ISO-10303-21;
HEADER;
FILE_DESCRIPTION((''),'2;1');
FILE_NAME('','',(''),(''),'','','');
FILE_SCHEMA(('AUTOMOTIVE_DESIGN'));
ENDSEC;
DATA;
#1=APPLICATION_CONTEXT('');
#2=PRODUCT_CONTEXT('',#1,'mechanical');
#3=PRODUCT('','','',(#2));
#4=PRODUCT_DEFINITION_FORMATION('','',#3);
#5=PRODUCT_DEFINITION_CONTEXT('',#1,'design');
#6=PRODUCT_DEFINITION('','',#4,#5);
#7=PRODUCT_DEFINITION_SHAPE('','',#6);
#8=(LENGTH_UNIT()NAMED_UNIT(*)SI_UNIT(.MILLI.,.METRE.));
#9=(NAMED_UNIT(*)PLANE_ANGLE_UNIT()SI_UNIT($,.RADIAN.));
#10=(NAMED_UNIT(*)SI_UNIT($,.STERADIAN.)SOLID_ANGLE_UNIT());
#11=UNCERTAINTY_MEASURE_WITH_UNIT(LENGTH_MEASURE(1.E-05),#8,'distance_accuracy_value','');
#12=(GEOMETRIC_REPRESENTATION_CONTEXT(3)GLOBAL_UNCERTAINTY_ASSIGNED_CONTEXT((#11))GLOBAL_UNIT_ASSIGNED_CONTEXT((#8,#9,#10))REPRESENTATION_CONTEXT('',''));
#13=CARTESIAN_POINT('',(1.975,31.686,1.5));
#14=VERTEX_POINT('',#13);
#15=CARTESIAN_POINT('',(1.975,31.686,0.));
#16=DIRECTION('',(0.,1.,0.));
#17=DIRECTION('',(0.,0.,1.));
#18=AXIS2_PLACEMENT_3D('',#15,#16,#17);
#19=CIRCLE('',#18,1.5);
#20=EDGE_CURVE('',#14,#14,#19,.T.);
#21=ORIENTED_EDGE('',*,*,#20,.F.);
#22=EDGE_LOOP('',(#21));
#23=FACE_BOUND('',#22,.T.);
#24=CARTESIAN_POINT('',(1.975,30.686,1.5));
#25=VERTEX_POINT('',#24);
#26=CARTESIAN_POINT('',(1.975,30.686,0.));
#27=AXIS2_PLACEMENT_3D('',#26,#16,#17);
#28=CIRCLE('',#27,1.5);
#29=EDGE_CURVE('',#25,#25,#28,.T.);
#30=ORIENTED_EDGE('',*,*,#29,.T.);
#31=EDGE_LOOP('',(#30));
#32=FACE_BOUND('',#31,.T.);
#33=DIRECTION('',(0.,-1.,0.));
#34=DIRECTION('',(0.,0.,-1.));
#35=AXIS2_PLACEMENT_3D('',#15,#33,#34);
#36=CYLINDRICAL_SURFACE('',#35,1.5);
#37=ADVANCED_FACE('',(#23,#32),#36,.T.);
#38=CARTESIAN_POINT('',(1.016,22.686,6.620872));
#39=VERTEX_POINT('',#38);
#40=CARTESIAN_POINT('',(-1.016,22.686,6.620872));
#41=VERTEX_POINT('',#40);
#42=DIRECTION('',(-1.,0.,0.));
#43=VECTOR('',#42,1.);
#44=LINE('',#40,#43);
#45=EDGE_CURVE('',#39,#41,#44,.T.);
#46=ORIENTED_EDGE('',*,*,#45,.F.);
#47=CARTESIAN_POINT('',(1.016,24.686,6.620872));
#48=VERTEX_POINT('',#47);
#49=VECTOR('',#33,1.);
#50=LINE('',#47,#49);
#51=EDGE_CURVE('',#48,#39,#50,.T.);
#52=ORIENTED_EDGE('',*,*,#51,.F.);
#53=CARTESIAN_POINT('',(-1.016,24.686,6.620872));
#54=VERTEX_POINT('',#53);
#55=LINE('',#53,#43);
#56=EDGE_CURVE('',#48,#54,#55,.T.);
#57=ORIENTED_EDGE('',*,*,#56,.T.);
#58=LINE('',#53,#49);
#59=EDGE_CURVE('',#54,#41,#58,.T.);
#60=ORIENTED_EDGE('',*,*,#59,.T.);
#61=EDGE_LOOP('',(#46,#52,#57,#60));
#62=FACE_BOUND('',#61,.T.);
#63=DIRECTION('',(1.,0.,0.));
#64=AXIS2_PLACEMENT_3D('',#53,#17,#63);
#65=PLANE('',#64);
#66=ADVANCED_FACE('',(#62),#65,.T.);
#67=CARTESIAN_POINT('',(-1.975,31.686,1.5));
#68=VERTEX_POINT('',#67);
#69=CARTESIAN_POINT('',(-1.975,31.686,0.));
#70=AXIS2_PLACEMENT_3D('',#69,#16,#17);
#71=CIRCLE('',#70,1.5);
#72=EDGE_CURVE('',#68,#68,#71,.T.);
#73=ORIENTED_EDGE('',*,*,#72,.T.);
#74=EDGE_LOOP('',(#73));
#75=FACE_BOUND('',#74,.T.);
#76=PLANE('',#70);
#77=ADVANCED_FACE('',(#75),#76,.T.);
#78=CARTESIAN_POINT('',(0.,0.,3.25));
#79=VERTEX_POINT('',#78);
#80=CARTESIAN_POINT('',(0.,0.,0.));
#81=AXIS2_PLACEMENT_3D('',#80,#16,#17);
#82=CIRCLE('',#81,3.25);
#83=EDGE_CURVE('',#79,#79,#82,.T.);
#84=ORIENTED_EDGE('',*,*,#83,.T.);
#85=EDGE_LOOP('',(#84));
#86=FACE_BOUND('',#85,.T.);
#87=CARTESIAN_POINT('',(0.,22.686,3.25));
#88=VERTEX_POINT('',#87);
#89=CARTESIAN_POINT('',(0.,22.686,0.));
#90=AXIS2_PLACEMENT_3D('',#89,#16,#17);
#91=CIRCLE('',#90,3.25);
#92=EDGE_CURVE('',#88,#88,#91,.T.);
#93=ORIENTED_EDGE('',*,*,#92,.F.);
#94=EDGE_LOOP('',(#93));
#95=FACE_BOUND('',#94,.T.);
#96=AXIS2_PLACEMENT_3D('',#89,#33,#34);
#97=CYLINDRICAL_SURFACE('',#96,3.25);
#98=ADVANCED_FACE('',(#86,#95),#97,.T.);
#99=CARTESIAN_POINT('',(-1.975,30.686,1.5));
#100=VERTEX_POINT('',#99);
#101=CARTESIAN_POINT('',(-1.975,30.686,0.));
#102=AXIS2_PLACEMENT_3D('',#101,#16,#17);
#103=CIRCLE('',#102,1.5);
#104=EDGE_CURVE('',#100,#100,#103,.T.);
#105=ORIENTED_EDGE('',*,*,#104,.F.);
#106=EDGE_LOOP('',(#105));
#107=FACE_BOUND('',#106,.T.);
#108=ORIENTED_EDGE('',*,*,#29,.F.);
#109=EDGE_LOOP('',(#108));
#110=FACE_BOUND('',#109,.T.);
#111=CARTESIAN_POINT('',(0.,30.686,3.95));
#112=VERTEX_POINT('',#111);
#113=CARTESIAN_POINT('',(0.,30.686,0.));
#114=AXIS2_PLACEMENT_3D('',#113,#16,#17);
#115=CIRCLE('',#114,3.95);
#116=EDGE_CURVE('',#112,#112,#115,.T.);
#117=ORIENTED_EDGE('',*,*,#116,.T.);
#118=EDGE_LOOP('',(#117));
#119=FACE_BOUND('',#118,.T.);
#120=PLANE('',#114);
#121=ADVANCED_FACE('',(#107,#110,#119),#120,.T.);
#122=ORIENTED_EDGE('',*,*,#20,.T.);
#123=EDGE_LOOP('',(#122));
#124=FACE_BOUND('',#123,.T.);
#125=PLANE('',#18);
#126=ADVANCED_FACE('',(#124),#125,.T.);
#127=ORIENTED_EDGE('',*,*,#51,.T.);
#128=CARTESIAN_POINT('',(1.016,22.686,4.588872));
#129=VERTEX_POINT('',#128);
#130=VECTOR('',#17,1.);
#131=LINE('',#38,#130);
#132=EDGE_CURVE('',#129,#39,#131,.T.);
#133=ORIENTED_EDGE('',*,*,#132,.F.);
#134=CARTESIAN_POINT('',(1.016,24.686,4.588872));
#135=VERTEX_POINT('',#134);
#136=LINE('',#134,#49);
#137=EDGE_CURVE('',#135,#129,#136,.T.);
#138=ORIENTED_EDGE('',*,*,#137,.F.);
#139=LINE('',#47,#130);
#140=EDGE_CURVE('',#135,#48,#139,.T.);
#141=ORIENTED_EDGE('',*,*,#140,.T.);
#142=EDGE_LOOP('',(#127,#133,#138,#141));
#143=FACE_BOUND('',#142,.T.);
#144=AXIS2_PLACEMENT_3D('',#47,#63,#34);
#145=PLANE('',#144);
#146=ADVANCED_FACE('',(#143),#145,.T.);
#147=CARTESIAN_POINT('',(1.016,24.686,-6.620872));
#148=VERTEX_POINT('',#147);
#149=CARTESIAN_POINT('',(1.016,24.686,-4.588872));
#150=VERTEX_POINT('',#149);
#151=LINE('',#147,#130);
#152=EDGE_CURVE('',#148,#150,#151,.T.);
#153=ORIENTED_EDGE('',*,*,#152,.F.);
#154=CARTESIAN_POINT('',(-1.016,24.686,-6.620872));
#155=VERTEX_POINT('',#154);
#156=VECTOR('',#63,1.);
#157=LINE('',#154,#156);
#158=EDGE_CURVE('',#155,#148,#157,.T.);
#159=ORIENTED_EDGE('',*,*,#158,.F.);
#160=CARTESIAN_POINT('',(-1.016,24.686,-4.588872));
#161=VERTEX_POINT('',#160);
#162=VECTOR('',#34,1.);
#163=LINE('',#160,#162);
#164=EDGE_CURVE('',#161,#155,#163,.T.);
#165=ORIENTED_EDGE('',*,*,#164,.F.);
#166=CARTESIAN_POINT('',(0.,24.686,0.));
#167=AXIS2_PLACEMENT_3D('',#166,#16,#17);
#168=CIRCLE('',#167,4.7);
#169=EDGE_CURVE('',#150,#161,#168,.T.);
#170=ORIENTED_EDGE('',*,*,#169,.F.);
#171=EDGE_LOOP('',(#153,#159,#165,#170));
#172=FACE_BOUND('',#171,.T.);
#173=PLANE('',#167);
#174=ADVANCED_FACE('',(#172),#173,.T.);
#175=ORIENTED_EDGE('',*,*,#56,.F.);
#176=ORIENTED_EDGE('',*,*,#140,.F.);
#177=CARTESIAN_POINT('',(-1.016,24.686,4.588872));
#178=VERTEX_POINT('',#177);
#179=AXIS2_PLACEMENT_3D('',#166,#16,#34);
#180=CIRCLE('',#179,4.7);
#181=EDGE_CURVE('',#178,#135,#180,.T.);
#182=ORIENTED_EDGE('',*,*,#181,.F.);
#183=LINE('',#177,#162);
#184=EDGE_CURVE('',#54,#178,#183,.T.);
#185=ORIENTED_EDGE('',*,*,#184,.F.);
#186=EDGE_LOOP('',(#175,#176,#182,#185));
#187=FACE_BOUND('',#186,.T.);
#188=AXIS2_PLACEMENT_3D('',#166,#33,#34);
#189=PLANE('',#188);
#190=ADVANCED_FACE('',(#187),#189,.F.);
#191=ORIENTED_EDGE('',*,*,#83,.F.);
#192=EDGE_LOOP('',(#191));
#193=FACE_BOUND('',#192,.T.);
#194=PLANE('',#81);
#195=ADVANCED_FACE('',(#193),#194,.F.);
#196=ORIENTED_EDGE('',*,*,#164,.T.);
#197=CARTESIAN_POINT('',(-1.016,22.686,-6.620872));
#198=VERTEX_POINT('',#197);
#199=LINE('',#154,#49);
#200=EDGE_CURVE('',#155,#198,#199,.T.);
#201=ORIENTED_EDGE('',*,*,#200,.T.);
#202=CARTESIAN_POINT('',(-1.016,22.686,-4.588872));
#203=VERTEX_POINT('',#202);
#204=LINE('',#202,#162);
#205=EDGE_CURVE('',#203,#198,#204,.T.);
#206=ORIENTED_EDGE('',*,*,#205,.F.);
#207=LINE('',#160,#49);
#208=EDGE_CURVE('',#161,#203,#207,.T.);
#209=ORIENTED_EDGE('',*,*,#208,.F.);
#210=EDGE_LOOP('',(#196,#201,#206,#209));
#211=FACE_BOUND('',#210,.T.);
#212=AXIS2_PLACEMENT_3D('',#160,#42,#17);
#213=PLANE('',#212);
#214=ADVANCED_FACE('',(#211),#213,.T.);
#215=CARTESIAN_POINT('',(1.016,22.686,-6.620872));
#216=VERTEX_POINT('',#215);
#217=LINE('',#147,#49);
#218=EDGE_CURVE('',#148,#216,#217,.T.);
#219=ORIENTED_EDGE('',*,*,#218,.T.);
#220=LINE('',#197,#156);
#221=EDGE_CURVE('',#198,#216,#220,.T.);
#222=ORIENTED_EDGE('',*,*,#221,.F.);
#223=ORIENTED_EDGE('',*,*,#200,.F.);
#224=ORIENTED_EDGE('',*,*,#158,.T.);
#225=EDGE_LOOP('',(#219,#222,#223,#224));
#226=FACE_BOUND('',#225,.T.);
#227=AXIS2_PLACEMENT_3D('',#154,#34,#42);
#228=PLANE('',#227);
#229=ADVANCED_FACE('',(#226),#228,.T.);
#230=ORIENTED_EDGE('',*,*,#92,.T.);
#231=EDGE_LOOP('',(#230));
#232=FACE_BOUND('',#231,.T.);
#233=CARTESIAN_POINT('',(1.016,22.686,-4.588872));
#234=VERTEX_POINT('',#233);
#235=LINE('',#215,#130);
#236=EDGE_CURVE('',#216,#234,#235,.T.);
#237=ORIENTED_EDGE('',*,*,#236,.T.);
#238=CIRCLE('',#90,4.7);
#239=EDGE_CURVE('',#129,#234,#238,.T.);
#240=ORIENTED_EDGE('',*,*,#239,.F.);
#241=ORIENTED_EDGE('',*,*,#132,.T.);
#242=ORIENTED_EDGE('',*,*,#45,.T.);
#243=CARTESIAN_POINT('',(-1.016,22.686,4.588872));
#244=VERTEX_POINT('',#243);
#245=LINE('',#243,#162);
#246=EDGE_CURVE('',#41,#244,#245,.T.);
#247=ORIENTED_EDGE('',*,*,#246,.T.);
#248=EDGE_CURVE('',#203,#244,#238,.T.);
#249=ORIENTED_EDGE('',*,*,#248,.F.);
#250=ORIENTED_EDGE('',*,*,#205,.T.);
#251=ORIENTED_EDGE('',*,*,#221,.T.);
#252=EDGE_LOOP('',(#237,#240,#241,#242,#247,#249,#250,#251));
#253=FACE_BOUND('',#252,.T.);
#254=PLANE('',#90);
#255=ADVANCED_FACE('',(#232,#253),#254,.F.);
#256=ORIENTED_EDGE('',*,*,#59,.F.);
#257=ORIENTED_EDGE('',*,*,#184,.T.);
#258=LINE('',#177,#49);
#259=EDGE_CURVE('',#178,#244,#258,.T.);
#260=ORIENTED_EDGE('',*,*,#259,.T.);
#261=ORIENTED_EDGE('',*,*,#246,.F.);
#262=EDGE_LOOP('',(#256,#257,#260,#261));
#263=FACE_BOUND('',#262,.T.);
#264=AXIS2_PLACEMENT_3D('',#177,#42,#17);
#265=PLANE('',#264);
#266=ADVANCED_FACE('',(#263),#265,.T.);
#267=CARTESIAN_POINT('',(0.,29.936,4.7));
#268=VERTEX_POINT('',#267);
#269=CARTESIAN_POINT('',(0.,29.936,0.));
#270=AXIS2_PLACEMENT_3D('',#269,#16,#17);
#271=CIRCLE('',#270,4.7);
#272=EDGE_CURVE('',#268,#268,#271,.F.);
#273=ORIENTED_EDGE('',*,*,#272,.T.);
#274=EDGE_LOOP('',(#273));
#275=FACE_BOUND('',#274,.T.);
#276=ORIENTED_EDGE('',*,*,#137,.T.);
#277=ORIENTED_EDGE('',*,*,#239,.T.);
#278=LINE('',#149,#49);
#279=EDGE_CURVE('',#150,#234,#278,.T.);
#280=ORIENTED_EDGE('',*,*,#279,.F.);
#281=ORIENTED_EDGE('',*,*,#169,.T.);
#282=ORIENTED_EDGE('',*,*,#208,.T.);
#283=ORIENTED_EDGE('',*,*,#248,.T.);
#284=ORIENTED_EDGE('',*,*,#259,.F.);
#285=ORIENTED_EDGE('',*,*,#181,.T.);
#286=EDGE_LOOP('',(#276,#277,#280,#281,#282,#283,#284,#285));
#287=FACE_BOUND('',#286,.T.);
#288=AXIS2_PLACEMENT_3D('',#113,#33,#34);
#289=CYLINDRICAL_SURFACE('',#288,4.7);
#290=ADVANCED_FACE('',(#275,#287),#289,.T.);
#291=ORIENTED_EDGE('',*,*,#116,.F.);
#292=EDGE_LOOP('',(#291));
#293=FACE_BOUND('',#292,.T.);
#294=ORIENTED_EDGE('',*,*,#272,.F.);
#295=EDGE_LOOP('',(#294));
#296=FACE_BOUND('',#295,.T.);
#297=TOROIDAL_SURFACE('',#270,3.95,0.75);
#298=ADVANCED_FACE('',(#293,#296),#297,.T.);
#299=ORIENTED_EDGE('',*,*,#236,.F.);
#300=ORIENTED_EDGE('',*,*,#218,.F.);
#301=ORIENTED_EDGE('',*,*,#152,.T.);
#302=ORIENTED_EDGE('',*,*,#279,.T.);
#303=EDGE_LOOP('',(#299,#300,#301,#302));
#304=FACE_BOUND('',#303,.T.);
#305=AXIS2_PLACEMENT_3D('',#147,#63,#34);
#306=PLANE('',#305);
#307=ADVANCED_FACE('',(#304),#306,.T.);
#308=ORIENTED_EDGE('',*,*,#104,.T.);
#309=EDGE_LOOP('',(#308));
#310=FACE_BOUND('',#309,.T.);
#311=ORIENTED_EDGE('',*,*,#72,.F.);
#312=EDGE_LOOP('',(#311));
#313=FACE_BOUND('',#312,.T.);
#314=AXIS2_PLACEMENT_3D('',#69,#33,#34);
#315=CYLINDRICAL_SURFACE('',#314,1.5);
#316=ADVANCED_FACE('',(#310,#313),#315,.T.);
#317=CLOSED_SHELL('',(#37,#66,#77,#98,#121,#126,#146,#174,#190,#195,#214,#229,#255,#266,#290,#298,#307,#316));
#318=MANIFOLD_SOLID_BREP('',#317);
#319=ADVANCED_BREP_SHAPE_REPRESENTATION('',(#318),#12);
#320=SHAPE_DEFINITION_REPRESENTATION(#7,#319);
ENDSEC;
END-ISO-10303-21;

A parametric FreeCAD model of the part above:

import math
import FreeCAD as App
import Part
import Sketcher


def edges_at(feature, points):
    """Names of the edges that pass closest to the given points."""
    edges = feature.Shape.Edges
    near = lambda p: min(range(len(edges)), key=lambda i: edges[i].distToShape(Part.Vertex(*p))[0])
    return sorted({f"Edge{near(p) + 1}" for p in points})

doc = App.newDocument("Part")
params = doc.addObject("Spreadsheet::Sheet", "Params")
for row, (alias, value) in enumerate([
    ("sketch1_diameter", "6.5 mm"),
    ("pad1_length", "22.686 mm"),
    ("sketch2_diameter", "9.4 mm"),
    ("pad2_length", "8 mm"),
    ("fillet_radius", "0.75 mm"),
    ("sketch3_diameter", "3 mm"),
    ("pad3_length", "1 mm"),
    ("sketch4_radius", "4.7 mm"),
    ("pad4_length", "2 mm"),
], start=1):
    params.set(f"A{row}", alias)
    params.set(f"B{row}", "=" + value)
    params.setAlias(f"B{row}", alias)

body = doc.addObject("PartDesign::Body", "Body")

# Sketch on XZ plane
sketch1 = body.newObject("Sketcher::SketchObject", "Sketch")
sketch1.AttachmentSupport = (doc.getObject("XZ_Plane"), [""])
sketch1.MapMode = "FlatFace"
sketch1.addGeometry(Part.Circle(App.Vector(0, 0, 0), App.Vector(0, 0, 1), 3.2), False)
sketch1.addConstraint([
    Sketcher.Constraint("Coincident", 0, 3, -1, 1),
    Sketcher.Constraint("Diameter", 0, 6.5),
])
sketch1.setExpression("Constraints[1]", "Params.sketch1_diameter")
pad1 = body.newObject("PartDesign::Pad", "Pad")
pad1.Profile = sketch1
pad1.setExpression("Length", "Params.pad1_length")
pad1.Reversed = True

# Sketch on XZ plane
sketch2 = body.newObject("Sketcher::SketchObject", "Sketch001")
sketch2.AttachmentSupport = (doc.getObject("XZ_Plane"), [""])
sketch2.MapMode = "FlatFace"
sketch2.AttachmentOffset = App.Placement(App.Vector(0, 0, -22.686), App.Rotation())
sketch2.addGeometry(Part.Circle(App.Vector(0, 0, 0), App.Vector(0, 0, 1), 4.7), False)
sketch2.addConstraint([
    Sketcher.Constraint("Coincident", 0, 3, -1, 1),
    Sketcher.Constraint("Diameter", 0, 9.4),
])
sketch2.setExpression("Constraints[1]", "Params.sketch2_diameter")
pad2 = body.newObject("PartDesign::Pad", "Pad001")
pad2.Profile = sketch2
pad2.setExpression("Length", "Params.pad2_length")
pad2.Reversed = True
doc.recompute()

fillet = body.newObject("PartDesign::Fillet", "Fillet")
fillet.Base = (pad2, edges_at(pad2, [(-4.7, 30.686, 0)]))
fillet.setExpression("Radius", "Params.fillet_radius")

# Sketch on XZ plane
sketch3 = body.newObject("Sketcher::SketchObject", "Sketch002")
sketch3.AttachmentSupport = (doc.getObject("XZ_Plane"), [""])
sketch3.MapMode = "FlatFace"
sketch3.AttachmentOffset = App.Placement(App.Vector(0, 0, -30.686), App.Rotation())
sketch3.addGeometry([
    Part.Circle(App.Vector(-2, 0, 0), App.Vector(0, 0, 1), 1.5),
    Part.Circle(App.Vector(2, 0, 0), App.Vector(0, 0, 1), 1.5),
], False)
sketch3.addConstraint([
    Sketcher.Constraint("Equal", 0, 1),
    Sketcher.Constraint("Symmetric", 0, 3, 1, 3, -1, 1),
    Sketcher.Constraint("PointOnObject", 0, 3, -1),
    Sketcher.Constraint("Diameter", 0, 3.0),
    Sketcher.Constraint("DistanceX", 0, 3, 1, 3, 3.95),
])
sketch3.setExpression("Constraints[3]", "Params.sketch3_diameter")
pad3 = body.newObject("PartDesign::Pad", "Pad002")
pad3.Profile = sketch3
pad3.setExpression("Length", "Params.pad3_length")
pad3.Reversed = True

# Sketch on XZ plane
sketch4 = body.newObject("Sketcher::SketchObject", "Sketch003")
sketch4.AttachmentSupport = (doc.getObject("XZ_Plane"), [""])
sketch4.MapMode = "FlatFace"
sketch4.AttachmentOffset = App.Placement(App.Vector(0, 0, -22.686), App.Rotation())
sketch4.addGeometry([
    Part.LineSegment(App.Vector(-1, 6.6, 0), App.Vector(-1, 4.6, 0)),  # 0
    Part.ArcOfCircle(Part.Circle(App.Vector(0, 0, 0), App.Vector(0, 0, 1), 4.7), math.radians(78), math.radians(102)),  # 1
    Part.LineSegment(App.Vector(1, 4.6, 0), App.Vector(1, 6.6, 0)),  # 2
    Part.LineSegment(App.Vector(1, 6.6, 0), App.Vector(-1, 6.6, 0)),  # 3
    Part.LineSegment(App.Vector(1, -6.6, 0), App.Vector(1, -4.6, 0)),  # 4
    Part.ArcOfCircle(Part.Circle(App.Vector(0, 0, 0), App.Vector(0, 0, 1), 4.7), math.radians(-102), math.radians(-78)),  # 5
    Part.LineSegment(App.Vector(-1, -4.6, 0), App.Vector(-1, -6.6, 0)),  # 6
    Part.LineSegment(App.Vector(-1, -6.6, 0), App.Vector(1, -6.6, 0)),  # 7
], False)
sketch4.addConstraint([
    Sketcher.Constraint("Coincident", 0, 2, 1, 2),
    Sketcher.Constraint("Coincident", 1, 1, 2, 1),
    Sketcher.Constraint("Coincident", 2, 2, 3, 1),
    Sketcher.Constraint("Coincident", 3, 2, 0, 1),
    Sketcher.Constraint("Coincident", 4, 2, 5, 2),
    Sketcher.Constraint("Coincident", 5, 1, 6, 1),
    Sketcher.Constraint("Coincident", 6, 2, 7, 1),
    Sketcher.Constraint("Coincident", 7, 2, 4, 1),
    Sketcher.Constraint("Vertical", 0),
    Sketcher.Constraint("Vertical", 2),
    Sketcher.Constraint("Horizontal", 3),
    Sketcher.Constraint("Vertical", 4),
    Sketcher.Constraint("Vertical", 6),
    Sketcher.Constraint("Horizontal", 7),
    Sketcher.Constraint("Coincident", 1, 3, -1, 1),
    Sketcher.Constraint("Coincident", 5, 3, -1, 1),
    Sketcher.Constraint("Equal", 1, 5),
    Sketcher.Constraint("Symmetric", 2, 2, 6, 2, -1, 1),
    Sketcher.Constraint("Horizontal", 0, 2, 1, 1),
    Sketcher.Constraint("Horizontal", 4, 2, 5, 1),
    Sketcher.Constraint("Equal", 7, 0),
    Sketcher.Constraint("Radius", 1, 4.7),
    Sketcher.Constraint("DistanceX", 3, 2, 3, 1, 2.032),
])
sketch4.setExpression("Constraints[21]", "Params.sketch4_radius")
pad4 = body.newObject("PartDesign::Pad", "Pad003")
pad4.Profile = sketch4
pad4.setExpression("Length", "Params.pad4_length")
pad4.Reversed = True

doc.recompute()
